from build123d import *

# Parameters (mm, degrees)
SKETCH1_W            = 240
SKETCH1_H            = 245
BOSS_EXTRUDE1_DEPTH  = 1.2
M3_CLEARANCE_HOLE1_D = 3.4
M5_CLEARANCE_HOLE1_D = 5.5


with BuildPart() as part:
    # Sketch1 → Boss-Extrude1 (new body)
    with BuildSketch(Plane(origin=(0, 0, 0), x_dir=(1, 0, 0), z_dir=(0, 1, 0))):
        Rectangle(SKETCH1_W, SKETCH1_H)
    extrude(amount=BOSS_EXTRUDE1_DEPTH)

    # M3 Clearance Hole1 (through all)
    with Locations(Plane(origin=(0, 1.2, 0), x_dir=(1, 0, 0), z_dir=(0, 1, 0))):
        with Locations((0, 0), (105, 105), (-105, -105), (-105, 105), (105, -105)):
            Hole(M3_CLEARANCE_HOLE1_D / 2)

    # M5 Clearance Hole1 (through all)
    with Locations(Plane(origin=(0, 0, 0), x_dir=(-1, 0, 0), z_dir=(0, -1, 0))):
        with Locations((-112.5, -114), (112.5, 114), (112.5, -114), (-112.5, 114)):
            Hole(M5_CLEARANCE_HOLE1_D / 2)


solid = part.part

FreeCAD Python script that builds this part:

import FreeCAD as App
import Part
import Sketcher


def add_polygon(sketch, points):
    """Adds a closed chain of lines whose ends are joined by coincident constraints."""
    first, n = sketch.GeometryCount, len(points)
    for a, b in zip(points, points[1:] + points[:1]):
        sketch.addGeometry(Part.LineSegment(App.Vector(*a, 0), App.Vector(*b, 0)), False)
    for i in range(n):
        sketch.addConstraint(Sketcher.Constraint("Coincident", first + i, 2, first + (i + 1) % n, 1))

doc = App.newDocument("Part")
params = doc.addObject("Spreadsheet::Sheet", "Params")
for row, (alias, value) in enumerate([
    ("sketch1_width", "240 mm"),
    ("sketch1_height", "245 mm"),
    ("pad1_length", "1.2 mm"),
    ("sketch2_diameter", "3.4 mm"),
    ("hole_diameter", "3.4 mm"),
    ("sketch3_diameter", "5.5 mm"),
    ("hole2_diameter", "5.5 mm"),
], start=1):
    params.set(f"A{row}", alias)
    params.set(f"B{row}", "=" + value)
    params.setAlias(f"B{row}", alias)

body = doc.addObject("PartDesign::Body", "Body")

# Sketch on XZ plane
sketch1 = doc.addObject("Sketcher::SketchObject", "Sketch")
body.addObject(sketch1)
sketch1.AttachmentSupport = (doc.XZ_Plane, [""])
sketch1.MapMode = "FlatFace"
add_polygon(sketch1, [(-120, -122), (-120, 122), (120, 122), (120, -122)])  # lines 0-3
sketch1.addConstraint(Sketcher.Constraint("Vertical", 0))
sketch1.addConstraint(Sketcher.Constraint("Horizontal", 1))
sketch1.addConstraint(Sketcher.Constraint("Vertical", 2))
sketch1.addConstraint(Sketcher.Constraint("Horizontal", 3))
sketch1.addConstraint(Sketcher.Constraint("Symmetric", 0, 2, 2, 2, -1, 1))
sketch1.addConstraint(Sketcher.Constraint("DistanceX", 1, 1, 1, 2, 240.0))
sketch1.addConstraint(Sketcher.Constraint("DistanceY", 0, 1, 0, 2, 245.0))
sketch1.setExpression("Constraints[9]", "Params.sketch1_width")
sketch1.setExpression("Constraints[10]", "Params.sketch1_height")
pad1 = doc.addObject("PartDesign::Pad", "Pad")
body.addObject(pad1)
pad1.Profile = sketch1
pad1.setExpression("Length", "Params.pad1_length")
pad1.Reversed = True

# Sketch on XZ plane
sketch2 = doc.addObject("Sketcher::SketchObject", "Sketch001")
body.addObject(sketch2)
sketch2.AttachmentSupport = (doc.XZ_Plane, [""])
sketch2.MapMode = "FlatFace"
sketch2.AttachmentOffset = App.Placement(App.Vector(0, 0, -1.2), App.Rotation())
sketch2.addGeometry(Part.Circle(App.Vector(0, 0, 0), App.Vector(0, 0, 1), 1.7), False)
sketch2.addGeometry(Part.Circle(App.Vector(105, -105, 0), App.Vector(0, 0, 1), 1.7), False)
sketch2.addGeometry(Part.Circle(App.Vector(-105, 105, 0), App.Vector(0, 0, 1), 1.7), False)
sketch2.addGeometry(Part.Circle(App.Vector(-105, -105, 0), App.Vector(0, 0, 1), 1.7), False)
sketch2.addGeometry(Part.Circle(App.Vector(105, 105, 0), App.Vector(0, 0, 1), 1.7), False)
sketch2.addConstraint(Sketcher.Constraint("Coincident", 0, 3, -1, 1))
sketch2.addConstraint(Sketcher.Constraint("Equal", 0, 1))
sketch2.addConstraint(Sketcher.Constraint("Equal", 1, 2))
sketch2.addConstraint(Sketcher.Constraint("Equal", 2, 3))
sketch2.addConstraint(Sketcher.Constraint("Equal", 3, 4))
sketch2.addConstraint(Sketcher.Constraint("Symmetric", 1, 3, 2, 3, -1, 1))
sketch2.addConstraint(Sketcher.Constraint("Symmetric", 3, 3, 4, 3, -1, 1))
sketch2.addConstraint(Sketcher.Constraint("Symmetric", 1, 3, 3, 3, -2))
sketch2.addConstraint(Sketcher.Constraint("Diameter", 0, 3.4))
sketch2.addConstraint(Sketcher.Constraint("DistanceX", -1, 1, 1, 3, 105.0))
sketch2.addConstraint(Sketcher.Constraint("DistanceY", 1, 3, -1, 1, 105.0))
sketch2.setExpression("Constraints[8]", "Params.sketch2_diameter")
doc.recompute()
hole = doc.addObject("PartDesign::Hole", "Hole")
body.addObject(hole)
hole.Profile = sketch2
hole.ThreadType = "None"
hole.setExpression("Diameter", "Params.hole_diameter")
hole.DepthType = "ThroughAll"
hole.Reversed = True

# Sketch on XZ plane
sketch3 = doc.addObject("Sketcher::SketchObject", "Sketch002")
body.addObject(sketch3)
sketch3.AttachmentSupport = (doc.XZ_Plane, [""])
sketch3.MapMode = "FlatFace"
sketch3.addGeometry(Part.Circle(App.Vector(112.5, 114, 0), App.Vector(0, 0, 1), 2.8), False)
sketch3.addGeometry(Part.Circle(App.Vector(-112.5, -114, 0), App.Vector(0, 0, 1), 2.8), False)
sketch3.addGeometry(Part.Circle(App.Vector(-112.5, 114, 0), App.Vector(0, 0, 1), 2.8), False)
sketch3.addGeometry(Part.Circle(App.Vector(112.5, -114, 0), App.Vector(0, 0, 1), 2.8), False)
sketch3.addConstraint(Sketcher.Constraint("Equal", 0, 1))
sketch3.addConstraint(Sketcher.Constraint("Equal", 1, 2))
sketch3.addConstraint(Sketcher.Constraint("Equal", 2, 3))
sketch3.addConstraint(Sketcher.Constraint("Symmetric", 0, 3, 1, 3, -1, 1))
sketch3.addConstraint(Sketcher.Constraint("Symmetric", 2, 3, 3, 3, -1, 1))
sketch3.addConstraint(Sketcher.Constraint("Symmetric", 0, 3, 2, 3, -2))
sketch3.addConstraint(Sketcher.Constraint("Diameter", 0, 5.5))
sketch3.addConstraint(Sketcher.Constraint("DistanceY", -1, 1, 0, 3, 114.0))
sketch3.addConstraint(Sketcher.Constraint("DistanceX", 1, 3, 0, 3, 225.0))
sketch3.setExpression("Constraints[6]", "Params.sketch3_diameter")
doc.recompute()
hole2 = doc.addObject("PartDesign::Hole", "Hole001")
body.addObject(hole2)
hole2.Profile = sketch3
hole2.ThreadType = "None"
hole2.setExpression("Diameter", "Params.hole2_diameter")
hole2.DepthType = "ThroughAll"

doc.recompute()
